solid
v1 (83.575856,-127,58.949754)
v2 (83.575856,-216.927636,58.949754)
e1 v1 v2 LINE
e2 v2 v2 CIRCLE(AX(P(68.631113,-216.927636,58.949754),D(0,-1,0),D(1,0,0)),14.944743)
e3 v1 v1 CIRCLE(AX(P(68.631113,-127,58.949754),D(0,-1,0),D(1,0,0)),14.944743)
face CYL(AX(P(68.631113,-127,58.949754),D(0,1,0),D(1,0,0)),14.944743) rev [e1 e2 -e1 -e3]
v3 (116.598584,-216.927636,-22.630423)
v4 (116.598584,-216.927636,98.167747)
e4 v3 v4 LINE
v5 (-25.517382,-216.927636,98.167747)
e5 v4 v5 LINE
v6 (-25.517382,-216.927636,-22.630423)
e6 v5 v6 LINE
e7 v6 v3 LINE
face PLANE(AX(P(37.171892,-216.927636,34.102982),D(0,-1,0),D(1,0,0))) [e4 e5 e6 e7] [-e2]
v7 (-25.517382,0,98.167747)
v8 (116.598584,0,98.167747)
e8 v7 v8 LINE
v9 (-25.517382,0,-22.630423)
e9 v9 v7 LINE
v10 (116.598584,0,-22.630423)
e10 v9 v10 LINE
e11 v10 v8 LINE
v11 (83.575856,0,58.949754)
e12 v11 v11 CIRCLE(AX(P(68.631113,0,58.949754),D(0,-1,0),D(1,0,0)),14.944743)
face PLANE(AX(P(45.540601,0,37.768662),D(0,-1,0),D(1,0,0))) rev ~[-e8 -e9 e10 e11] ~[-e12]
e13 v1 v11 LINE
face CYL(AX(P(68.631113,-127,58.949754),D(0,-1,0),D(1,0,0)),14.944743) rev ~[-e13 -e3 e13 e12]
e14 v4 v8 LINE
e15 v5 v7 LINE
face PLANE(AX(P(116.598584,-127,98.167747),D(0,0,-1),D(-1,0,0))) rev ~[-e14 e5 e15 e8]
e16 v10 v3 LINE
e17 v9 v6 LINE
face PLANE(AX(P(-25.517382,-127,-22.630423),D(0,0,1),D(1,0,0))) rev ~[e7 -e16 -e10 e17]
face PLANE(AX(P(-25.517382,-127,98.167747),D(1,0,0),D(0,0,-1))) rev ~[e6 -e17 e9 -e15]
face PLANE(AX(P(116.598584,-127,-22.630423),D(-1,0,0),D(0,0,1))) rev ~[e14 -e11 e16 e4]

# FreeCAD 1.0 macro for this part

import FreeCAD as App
import Part
import Sketcher
Q = App.Units.Quantity


def add_polygon(sketch, points):
    """Adds a closed chain of lines whose ends are joined by coincident constraints."""
    first, n = sketch.GeometryCount, len(points)
    for a, b in zip(points, points[1:] + points[:1]):
        sketch.addGeometry(Part.LineSegment(App.Vector(*a, 0), App.Vector(*b, 0)), False)
    for i in range(n):
        sketch.addConstraint(Sketcher.Constraint("Coincident", first + i, 2, first + (i + 1) % n, 1))

doc = App.newDocument("Part")
body = doc.addObject("PartDesign::Body", "Body")

# Sketch on XZ plane
sketch1 = doc.addObject("Sketcher::SketchObject", "Sketch")
body.addObject(sketch1)
sketch1.AttachmentSupport = (doc.XZ_Plane, [""])
sketch1.MapMode = "FlatFace"
add_polygon(sketch1, [(-26, 98), (-26, -23), (117, -23), (117, 98)])  # lines 0-3
sketch1.addConstraint([
    Sketcher.Constraint("Vertical", 0),
    Sketcher.Constraint("Horizontal", 1),
    Sketcher.Constraint("Vertical", 2),
    Sketcher.Constraint("Horizontal", 3),
    Sketcher.Constraint("DistanceY", 0, 2, 0, 1, 120.79817),
    Sketcher.Constraint("DistanceX", 1, 1, 1, 2, 142.115966),
    Sketcher.Constraint("DistanceX", 0, 2, -1, 1, 25.517382),
    Sketcher.Constraint("DistanceY", 0, 2, -1, 1, 22.630423),
])
pad1 = doc.addObject("PartDesign::Pad", "Pad")
body.addObject(pad1)
pad1.Profile = sketch1
pad1.Length = Q("5 in")

# Sketch on XZ plane
sketch2 = doc.addObject("Sketcher::SketchObject", "Sketch001")
body.addObject(sketch2)
sketch2.AttachmentSupport = (doc.XZ_Plane, [""])
sketch2.MapMode = "FlatFace"
sketch2.AttachmentOffset = App.Placement(App.Vector(0, 0, 5 * 25.4), App.Rotation())
sketch2.addGeometry(Part.Circle(App.Vector(69, 59, 0), App.Vector(0, 0, 1), 15), False)
sketch2.addConstraint([
    Sketcher.Constraint("Diameter", 0, 29.889486),
    Sketcher.Constraint("DistanceX", -1, 1, 0, 3, 68.631113),
    Sketcher.Constraint("DistanceY", -1, 1, 0, 3, 58.949754),
])
pocket1 = doc.addObject("PartDesign::Pocket", "Pocket")
body.addObject(pocket1)
pocket1.Profile = sketch2
pocket1.Type = "ThroughAll"

# Sketch on XZ plane
sketch3 = doc.addObject("Sketcher::SketchObject", "Sketch002")
body.addObject(sketch3)
sketch3.AttachmentSupport = (doc.XZ_Plane, [""])
sketch3.MapMode = "FlatFace"
sketch3.AttachmentOffset = App.Placement(App.Vector(0, 0, 5 * 25.4), App.Rotation())
add_polygon(sketch3, [(-26, 98), (-26, -23), (117, -23), (117, 98)])  # lines 0-3
sketch3.addGeometry(Part.Circle(App.Vector(69, 59, 0), App.Vector(0, 0, 1), 15), False)  # 4
sketch3.addConstraint([
    Sketcher.Constraint("Vertical", 0),
    Sketcher.Constraint("Horizontal", 1),
    Sketcher.Constraint("Vertical", 2),
    Sketcher.Constraint("Horizontal", 3),
    Sketcher.Constraint("Diameter", 4, 29.889486),
    Sketcher.Constraint("DistanceY", 0, 2, 0, 1, 120.79817),
    Sketcher.Constraint("DistanceX", 1, 1, 1, 2, 142.115966),
    Sketcher.Constraint("DistanceX", 4, 3, 1, 2, 47.967471),
    Sketcher.Constraint("DistanceX", -1, 1, 4, 3, 68.631113),
    Sketcher.Constraint("DistanceY", -1, 1, 4, 3, 58.949754),
    Sketcher.Constraint("DistanceY", 0, 2, -1, 1, 22.630423),
])
pad2 = doc.addObject("PartDesign::Pad", "Pad001")
body.addObject(pad2)
pad2.Profile = sketch3
pad2.Length = 89.927636

doc.recompute()
